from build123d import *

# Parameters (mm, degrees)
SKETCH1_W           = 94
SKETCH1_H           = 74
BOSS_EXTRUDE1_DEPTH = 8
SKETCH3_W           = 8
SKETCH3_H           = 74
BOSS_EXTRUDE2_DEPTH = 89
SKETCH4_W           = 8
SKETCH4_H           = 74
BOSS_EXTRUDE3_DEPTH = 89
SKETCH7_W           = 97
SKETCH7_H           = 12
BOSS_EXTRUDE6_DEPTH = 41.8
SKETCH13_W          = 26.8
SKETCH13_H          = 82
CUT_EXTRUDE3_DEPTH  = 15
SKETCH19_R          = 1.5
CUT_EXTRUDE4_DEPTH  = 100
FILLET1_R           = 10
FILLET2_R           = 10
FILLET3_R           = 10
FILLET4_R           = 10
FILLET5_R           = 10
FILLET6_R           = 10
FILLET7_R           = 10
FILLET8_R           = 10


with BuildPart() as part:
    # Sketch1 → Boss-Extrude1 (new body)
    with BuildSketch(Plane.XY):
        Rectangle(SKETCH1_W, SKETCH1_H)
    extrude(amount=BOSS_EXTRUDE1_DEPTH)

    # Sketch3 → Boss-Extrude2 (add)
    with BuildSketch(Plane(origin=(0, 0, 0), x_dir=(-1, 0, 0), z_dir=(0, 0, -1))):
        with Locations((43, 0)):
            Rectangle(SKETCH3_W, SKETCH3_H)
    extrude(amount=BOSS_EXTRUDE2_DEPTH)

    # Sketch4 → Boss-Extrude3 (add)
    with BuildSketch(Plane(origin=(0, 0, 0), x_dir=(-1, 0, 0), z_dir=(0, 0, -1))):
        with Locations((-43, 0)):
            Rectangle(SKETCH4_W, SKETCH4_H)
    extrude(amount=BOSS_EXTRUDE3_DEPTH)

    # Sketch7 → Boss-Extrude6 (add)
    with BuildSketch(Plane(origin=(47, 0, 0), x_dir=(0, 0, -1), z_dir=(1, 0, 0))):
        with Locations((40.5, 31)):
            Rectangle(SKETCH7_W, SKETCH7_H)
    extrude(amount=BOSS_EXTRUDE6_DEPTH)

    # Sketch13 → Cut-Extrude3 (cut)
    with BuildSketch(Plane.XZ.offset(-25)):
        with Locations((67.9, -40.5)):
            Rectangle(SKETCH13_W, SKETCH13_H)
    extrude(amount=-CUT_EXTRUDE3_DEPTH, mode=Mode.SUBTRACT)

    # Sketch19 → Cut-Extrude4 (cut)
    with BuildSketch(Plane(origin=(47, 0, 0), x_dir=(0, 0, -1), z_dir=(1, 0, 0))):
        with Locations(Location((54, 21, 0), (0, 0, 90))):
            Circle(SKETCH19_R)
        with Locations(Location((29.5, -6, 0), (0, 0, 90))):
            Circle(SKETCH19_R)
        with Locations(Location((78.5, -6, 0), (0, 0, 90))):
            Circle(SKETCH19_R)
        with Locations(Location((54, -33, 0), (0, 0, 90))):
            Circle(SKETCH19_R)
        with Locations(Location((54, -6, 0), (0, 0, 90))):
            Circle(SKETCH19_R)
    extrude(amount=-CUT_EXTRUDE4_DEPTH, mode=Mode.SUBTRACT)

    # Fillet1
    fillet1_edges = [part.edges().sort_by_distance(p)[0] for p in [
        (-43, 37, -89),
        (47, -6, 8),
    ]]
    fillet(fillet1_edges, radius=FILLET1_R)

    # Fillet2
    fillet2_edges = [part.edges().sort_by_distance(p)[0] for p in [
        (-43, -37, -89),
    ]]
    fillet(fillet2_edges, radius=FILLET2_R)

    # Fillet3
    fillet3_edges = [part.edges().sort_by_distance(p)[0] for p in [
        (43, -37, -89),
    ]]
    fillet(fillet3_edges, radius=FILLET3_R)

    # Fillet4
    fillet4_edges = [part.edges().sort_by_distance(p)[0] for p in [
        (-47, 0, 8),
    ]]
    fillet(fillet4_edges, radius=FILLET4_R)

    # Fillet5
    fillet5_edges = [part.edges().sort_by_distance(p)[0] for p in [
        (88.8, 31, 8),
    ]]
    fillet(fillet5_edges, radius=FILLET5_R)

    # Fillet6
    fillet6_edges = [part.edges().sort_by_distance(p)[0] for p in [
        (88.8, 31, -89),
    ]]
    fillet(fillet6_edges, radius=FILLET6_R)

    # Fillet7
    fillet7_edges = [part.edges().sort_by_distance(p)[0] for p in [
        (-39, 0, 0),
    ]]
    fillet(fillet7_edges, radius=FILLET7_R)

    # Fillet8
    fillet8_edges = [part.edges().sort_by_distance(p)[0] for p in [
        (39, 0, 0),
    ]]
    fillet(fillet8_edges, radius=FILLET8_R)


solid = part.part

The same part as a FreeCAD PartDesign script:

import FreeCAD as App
import Part
import Sketcher


def edges_at(feature, points):
    """Names of the edges that pass closest to the given points."""
    edges = feature.Shape.Edges
    near = lambda p: min(range(len(edges)), key=lambda i: edges[i].distToShape(Part.Vertex(*p))[0])
    return sorted({f"Edge{near(p) + 1}" for p in points})


def add_polygon(sketch, points):
    """Adds a closed chain of lines whose ends are joined by coincident constraints."""
    first, n = sketch.GeometryCount, len(points)
    for a, b in zip(points, points[1:] + points[:1]):
        sketch.addGeometry(Part.LineSegment(App.Vector(*a, 0), App.Vector(*b, 0)), False)
    for i in range(n):
        sketch.addConstraint(Sketcher.Constraint("Coincident", first + i, 2, first + (i + 1) % n, 1))

doc = App.newDocument("Part")
body = doc.addObject("PartDesign::Body", "Body")

# Sketch on XY plane
sketch1 = body.newObject("Sketcher::SketchObject", "Sketch")
sketch1.AttachmentSupport = (doc.getObject("XY_Plane"), [""])
sketch1.MapMode = "FlatFace"
add_polygon(sketch1, [(-47, 37), (-47, -37), (47, -37), (47, 37)])  # lines 0-3
sketch1.addConstraint(Sketcher.Constraint("Vertical", 0))
sketch1.addConstraint(Sketcher.Constraint("Horizontal", 1))
sketch1.addConstraint(Sketcher.Constraint("Vertical", 2))
sketch1.addConstraint(Sketcher.Constraint("Horizontal", 3))
sketch1.addConstraint(Sketcher.Constraint("Symmetric", 0, 2, 2, 2, -1, 1))
sketch1.addConstraint(Sketcher.Constraint("DistanceX", 1, 1, 1, 2, 94.0))
sketch1.addConstraint(Sketcher.Constraint("DistanceY", 0, 2, 0, 1, 74.0))
pad1 = body.newObject("PartDesign::Pad", "Pad")
pad1.Profile = sketch1
pad1.Length = 8

# Sketch on XY plane
sketch2 = body.newObject("Sketcher::SketchObject", "Sketch001")
sketch2.AttachmentSupport = (doc.getObject("XY_Plane"), [""])
sketch2.MapMode = "FlatFace"
add_polygon(sketch2, [(-39, 37), (-39, -37), (-47, -37), (-47, 37)])  # lines 0-3
sketch2.addConstraint(Sketcher.Constraint("Vertical", 0))
sketch2.addConstraint(Sketcher.Constraint("Horizontal", 1))
sketch2.addConstraint(Sketcher.Constraint("Vertical", 2))
sketch2.addConstraint(Sketcher.Constraint("Horizontal", 3))
sketch2.addConstraint(Sketcher.Constraint("DistanceX", 1, 2, 1, 1, 8.0))
sketch2.addConstraint(Sketcher.Constraint("DistanceY", 0, 2, 0, 1, 74.0))
sketch2.addConstraint(Sketcher.Constraint("DistanceX", 0, 2, -1, 1, 39.0))
sketch2.addConstraint(Sketcher.Constraint("DistanceY", 0, 2, -1, 1, 37.0))
pad2 = body.newObject("PartDesign::Pad", "Pad001")
pad2.Profile = sketch2
pad2.Length = 89
pad2.Reversed = True

# Sketch on XY plane
sketch3 = body.newObject("Sketcher::SketchObject", "Sketch002")
sketch3.AttachmentSupport = (doc.getObject("XY_Plane"), [""])
sketch3.MapMode = "FlatFace"
add_polygon(sketch3, [(47, 37), (47, -37), (39, -37), (39, 37)])  # lines 0-3
sketch3.addConstraint(Sketcher.Constraint("Vertical", 0))
sketch3.addConstraint(Sketcher.Constraint("Horizontal", 1))
sketch3.addConstraint(Sketcher.Constraint("Vertical", 2))
sketch3.addConstraint(Sketcher.Constraint("Horizontal", 3))
sketch3.addConstraint(Sketcher.Constraint("DistanceX", 1, 2, 1, 1, 8.0))
sketch3.addConstraint(Sketcher.Constraint("DistanceY", 0, 2, 0, 1, 74.0))
sketch3.addConstraint(Sketcher.Constraint("DistanceX", -1, 1, 0, 2, 47.0))
sketch3.addConstraint(Sketcher.Constraint("DistanceY", 0, 2, -1, 1, 37.0))
pad3 = body.newObject("PartDesign::Pad", "Pad002")
pad3.Profile = sketch3
pad3.Length = 89
pad3.Reversed = True

# Sketch on YZ plane
sketch4 = body.newObject("Sketcher::SketchObject", "Sketch003")
sketch4.AttachmentSupport = (doc.getObject("YZ_Plane"), [""])
sketch4.MapMode = "FlatFace"
sketch4.AttachmentOffset = App.Placement(App.Vector(0, 0, 47), App.Rotation())
add_polygon(sketch4, [(37, 8), (25, 8), (25, -89), (37, -89)])  # lines 0-3
sketch4.addConstraint(Sketcher.Constraint("Horizontal", 0))
sketch4.addConstraint(Sketcher.Constraint("Vertical", 1))
sketch4.addConstraint(Sketcher.Constraint("Horizontal", 2))
sketch4.addConstraint(Sketcher.Constraint("Vertical", 3))
sketch4.addConstraint(Sketcher.Constraint("DistanceX", 0, 2, 0, 1, 12.0))
sketch4.addConstraint(Sketcher.Constraint("DistanceY", 1, 2, 1, 1, 97.0))
sketch4.addConstraint(Sketcher.Constraint("DistanceX", -1, 1, 0, 2, 25.0))
sketch4.addConstraint(Sketcher.Constraint("DistanceY", -1, 1, 0, 2, 8.0))
pad4 = body.newObject("PartDesign::Pad", "Pad003")
pad4.Profile = sketch4
pad4.Length = 41.8

# Sketch on XZ plane
sketch5 = body.newObject("Sketcher::SketchObject", "Sketch004")
sketch5.AttachmentSupport = (doc.getObject("XZ_Plane"), [""])
sketch5.MapMode = "FlatFace"
sketch5.AttachmentOffset = App.Placement(App.Vector(0, 0, -25), App.Rotation())
add_polygon(sketch5, [(54.5, 0.5), (54.5, -81.5), (81.3, -81.5), (81.3, 0.5)])  # lines 0-3
sketch5.addConstraint(Sketcher.Constraint("Vertical", 0))
sketch5.addConstraint(Sketcher.Constraint("Horizontal", 1))
sketch5.addConstraint(Sketcher.Constraint("Vertical", 2))
sketch5.addConstraint(Sketcher.Constraint("Horizontal", 3))
sketch5.addConstraint(Sketcher.Constraint("DistanceY", 0, 2, 0, 1, 82.0))
sketch5.addConstraint(Sketcher.Constraint("DistanceX", 1, 1, 1, 2, 26.8))
sketch5.addConstraint(Sketcher.Constraint("DistanceX", -1, 1, 0, 2, 54.5))
sketch5.addConstraint(Sketcher.Constraint("DistanceY", 0, 2, -1, 1, 81.5))
pocket1 = body.newObject("PartDesign::Pocket", "Pocket")
pocket1.Profile = sketch5
pocket1.Length = 15

# Sketch on YZ plane
sketch6 = body.newObject("Sketcher::SketchObject", "Sketch005")
sketch6.AttachmentSupport = (doc.getObject("YZ_Plane"), [""])
sketch6.MapMode = "FlatFace"
sketch6.AttachmentOffset = App.Placement(App.Vector(0, 0, 47), App.Rotation())
sketch6.addGeometry(Part.Circle(App.Vector(21, -54, 0), App.Vector(0, 0, 1), 1.5), False)
sketch6.addGeometry(Part.Circle(App.Vector(-6, -29.5, 0), App.Vector(0, 0, 1), 1.5), False)
sketch6.addGeometry(Part.Circle(App.Vector(-6, -78.5, 0), App.Vector(0, 0, 1), 1.5), False)
sketch6.addGeometry(Part.Circle(App.Vector(-33, -54, 0), App.Vector(0, 0, 1), 1.5), False)
sketch6.addGeometry(Part.Circle(App.Vector(-6, -54, 0), App.Vector(0, 0, 1), 1.5), False)
sketch6.addConstraint(Sketcher.Constraint("Equal", 0, 1))
sketch6.addConstraint(Sketcher.Constraint("Equal", 1, 2))
sketch6.addConstraint(Sketcher.Constraint("Equal", 2, 3))
sketch6.addConstraint(Sketcher.Constraint("Equal", 3, 4))
sketch6.addConstraint(Sketcher.Constraint("Horizontal", 0, 3, 3, 3))
sketch6.addConstraint(Sketcher.Constraint("Horizontal", 3, 3, 4, 3))
sketch6.addConstraint(Sketcher.Constraint("Vertical", 1, 3, 2, 3))
sketch6.addConstraint(Sketcher.Constraint("Vertical", 2, 3, 4, 3))
sketch6.addConstraint(Sketcher.Constraint("Diameter", 0, 3.0))
sketch6.addConstraint(Sketcher.Constraint("DistanceX", -1, 1, 0, 3, 21.0))
sketch6.addConstraint(Sketcher.Constraint("DistanceY", 0, 3, -1, 1, 54.0))
sketch6.addConstraint(Sketcher.Constraint("DistanceX", 1, 3, -1, 1, 6.0))
sketch6.addConstraint(Sketcher.Constraint("DistanceX", 3, 3, -1, 1, 33.0))
sketch6.addConstraint(Sketcher.Constraint("DistanceY", 2, 3, 1, 3, 49.0))
sketch6.addConstraint(Sketcher.Constraint("DistanceY", 1, 3, -1, 1, 29.5))
pocket2 = body.newObject("PartDesign::Pocket", "Pocket001")
pocket2.Profile = sketch6
pocket2.Length = 100
doc.recompute()

fillet = body.newObject("PartDesign::Fillet", "Fillet")
fillet.Base = (pocket2, edges_at(pocket2, [(-43, 37, -89), (47, -6, 8)]))
fillet.Radius = 10
doc.recompute()

fillet2 = body.newObject("PartDesign::Fillet", "Fillet001")
fillet2.Base = (fillet, edges_at(fillet, [(-43, -37, -89)]))
fillet2.Radius = 10
doc.recompute()

fillet3 = body.newObject("PartDesign::Fillet", "Fillet002")
fillet3.Base = (fillet2, edges_at(fillet2, [(43, -37, -89)]))
fillet3.Radius = 10
doc.recompute()

fillet4 = body.newObject("PartDesign::Fillet", "Fillet003")
fillet4.Base = (fillet3, edges_at(fillet3, [(-47, 0, 8)]))
fillet4.Radius = 10
doc.recompute()

fillet5 = body.newObject("PartDesign::Fillet", "Fillet004")
fillet5.Base = (fillet4, edges_at(fillet4, [(88.8, 31, 8)]))
fillet5.Radius = 10
doc.recompute()

fillet6 = body.newObject("PartDesign::Fillet", "Fillet005")
fillet6.Base = (fillet5, edges_at(fillet5, [(88.8, 31, -89)]))
fillet6.Radius = 10
doc.recompute()

fillet7 = body.newObject("PartDesign::Fillet", "Fillet006")
fillet7.Base = (fillet6, edges_at(fillet6, [(-39, 0, 0)]))
fillet7.Radius = 10
doc.recompute()

fillet8 = body.newObject("PartDesign::Fillet", "Fillet007")
fillet8.Base = (fillet7, edges_at(fillet7, [(39, 0, 0)]))
fillet8.Radius = 10

doc.recompute()
